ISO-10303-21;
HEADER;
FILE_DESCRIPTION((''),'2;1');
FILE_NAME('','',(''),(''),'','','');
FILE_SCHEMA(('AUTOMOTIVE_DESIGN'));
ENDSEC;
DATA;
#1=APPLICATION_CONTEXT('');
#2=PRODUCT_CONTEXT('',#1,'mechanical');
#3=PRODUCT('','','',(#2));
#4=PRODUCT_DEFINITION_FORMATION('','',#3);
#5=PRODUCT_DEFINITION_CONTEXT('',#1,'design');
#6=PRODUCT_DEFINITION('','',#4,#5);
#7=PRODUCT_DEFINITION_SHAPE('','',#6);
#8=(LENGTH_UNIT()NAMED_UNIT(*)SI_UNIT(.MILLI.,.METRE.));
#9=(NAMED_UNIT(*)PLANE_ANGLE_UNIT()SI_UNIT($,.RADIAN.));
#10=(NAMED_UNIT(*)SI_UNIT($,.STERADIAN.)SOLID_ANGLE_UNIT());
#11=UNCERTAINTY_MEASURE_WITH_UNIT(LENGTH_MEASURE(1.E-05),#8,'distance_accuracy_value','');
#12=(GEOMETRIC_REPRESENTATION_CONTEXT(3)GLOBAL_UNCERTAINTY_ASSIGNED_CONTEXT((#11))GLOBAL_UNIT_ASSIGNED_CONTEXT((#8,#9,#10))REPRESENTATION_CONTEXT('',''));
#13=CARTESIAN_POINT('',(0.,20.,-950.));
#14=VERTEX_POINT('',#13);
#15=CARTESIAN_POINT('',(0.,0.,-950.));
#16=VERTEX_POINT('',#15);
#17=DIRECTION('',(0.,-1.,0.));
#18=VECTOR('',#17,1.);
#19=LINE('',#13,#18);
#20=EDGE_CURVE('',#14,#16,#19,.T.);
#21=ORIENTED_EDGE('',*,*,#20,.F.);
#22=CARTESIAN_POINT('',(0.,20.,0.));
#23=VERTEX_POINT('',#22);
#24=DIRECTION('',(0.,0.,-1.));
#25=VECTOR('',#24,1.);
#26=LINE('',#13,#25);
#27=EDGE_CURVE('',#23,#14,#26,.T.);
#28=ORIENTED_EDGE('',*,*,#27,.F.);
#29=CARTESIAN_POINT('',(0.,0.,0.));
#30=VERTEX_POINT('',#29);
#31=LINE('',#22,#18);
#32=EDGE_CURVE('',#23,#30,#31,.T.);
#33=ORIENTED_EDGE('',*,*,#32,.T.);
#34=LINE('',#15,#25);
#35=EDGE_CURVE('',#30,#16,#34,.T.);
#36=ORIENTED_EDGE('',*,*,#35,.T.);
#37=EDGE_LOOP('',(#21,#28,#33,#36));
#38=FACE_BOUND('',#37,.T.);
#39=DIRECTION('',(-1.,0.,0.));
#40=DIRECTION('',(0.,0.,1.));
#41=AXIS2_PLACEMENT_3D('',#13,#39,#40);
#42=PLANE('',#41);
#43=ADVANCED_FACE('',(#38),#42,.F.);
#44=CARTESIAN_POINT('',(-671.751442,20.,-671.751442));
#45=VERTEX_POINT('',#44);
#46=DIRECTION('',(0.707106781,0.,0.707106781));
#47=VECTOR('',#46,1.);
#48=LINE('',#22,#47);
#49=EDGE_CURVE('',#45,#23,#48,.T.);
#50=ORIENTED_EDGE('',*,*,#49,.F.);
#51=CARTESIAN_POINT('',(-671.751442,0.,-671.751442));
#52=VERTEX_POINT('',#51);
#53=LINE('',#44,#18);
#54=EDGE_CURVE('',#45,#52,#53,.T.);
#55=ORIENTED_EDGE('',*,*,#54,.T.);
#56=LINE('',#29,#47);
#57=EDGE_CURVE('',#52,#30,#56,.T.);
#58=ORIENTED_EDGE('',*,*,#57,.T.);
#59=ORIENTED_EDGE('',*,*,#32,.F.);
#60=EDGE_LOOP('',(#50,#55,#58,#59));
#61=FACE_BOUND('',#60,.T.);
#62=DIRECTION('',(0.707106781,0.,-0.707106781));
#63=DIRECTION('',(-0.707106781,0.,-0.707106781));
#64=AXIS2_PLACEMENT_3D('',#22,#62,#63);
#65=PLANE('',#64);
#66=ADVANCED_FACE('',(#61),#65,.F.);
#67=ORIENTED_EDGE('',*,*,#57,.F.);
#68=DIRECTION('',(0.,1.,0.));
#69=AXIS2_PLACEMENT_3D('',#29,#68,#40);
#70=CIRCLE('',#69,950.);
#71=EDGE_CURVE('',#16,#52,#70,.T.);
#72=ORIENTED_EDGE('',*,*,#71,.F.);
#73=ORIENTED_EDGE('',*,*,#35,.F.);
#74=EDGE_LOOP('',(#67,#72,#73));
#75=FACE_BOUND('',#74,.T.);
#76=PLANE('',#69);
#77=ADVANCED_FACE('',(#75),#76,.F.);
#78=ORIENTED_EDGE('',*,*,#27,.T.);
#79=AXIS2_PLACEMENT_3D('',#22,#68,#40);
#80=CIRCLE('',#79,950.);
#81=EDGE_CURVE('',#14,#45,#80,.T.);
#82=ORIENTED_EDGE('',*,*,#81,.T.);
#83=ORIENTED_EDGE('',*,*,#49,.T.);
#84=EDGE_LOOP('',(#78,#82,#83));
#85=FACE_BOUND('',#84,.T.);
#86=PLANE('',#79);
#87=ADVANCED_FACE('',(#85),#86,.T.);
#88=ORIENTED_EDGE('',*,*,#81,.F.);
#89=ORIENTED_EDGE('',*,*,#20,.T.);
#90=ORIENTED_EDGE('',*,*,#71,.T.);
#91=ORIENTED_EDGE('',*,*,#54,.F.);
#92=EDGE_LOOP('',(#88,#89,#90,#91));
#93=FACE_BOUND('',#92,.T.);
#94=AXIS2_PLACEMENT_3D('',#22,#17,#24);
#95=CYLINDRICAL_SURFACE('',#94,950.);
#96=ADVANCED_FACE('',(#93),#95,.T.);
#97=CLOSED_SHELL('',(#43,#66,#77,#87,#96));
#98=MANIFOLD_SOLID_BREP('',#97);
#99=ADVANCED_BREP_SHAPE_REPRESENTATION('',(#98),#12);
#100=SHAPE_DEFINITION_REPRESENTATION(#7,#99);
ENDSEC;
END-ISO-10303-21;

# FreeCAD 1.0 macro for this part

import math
import FreeCAD as App
import Part
import Sketcher
from FreeCAD import Vector
Q = App.Units.Quantity

doc = App.newDocument("Part")
body = doc.addObject("PartDesign::Body", "Body")

# Sketch on XZ plane
sketch1 = body.newObject("Sketcher::SketchObject", "Sketch")
sketch1.AttachmentSupport = (doc.getObject("XZ_Plane"), [""])
sketch1.MapMode = "FlatFace"
sketch1.addGeometry([
    Part.LineSegment(Vector(0, 0, 0), Vector(0, -950, 0)),
    Part.ArcOfCircle(Part.Circle(Vector(0, 0, 0), Vector(0, 0, 1), 950), math.radians(-135), math.radians(-90)),
    Part.LineSegment(Vector(-671.751442, -671.751442, 0), Vector(0, 0, 0)),
], False)
sketch1.addConstraint([
    Sketcher.Constraint("Coincident", 0, 2, 1, 2),
    Sketcher.Constraint("Coincident", 1, 1, 2, 1),
    Sketcher.Constraint("Coincident", 2, 2, 0, 1),
    Sketcher.Constraint("Vertical", 0),
    Sketcher.Constraint("Coincident", 1, 3, -1, 1),
    Sketcher.Constraint("Coincident", 2, 2, -1, 1),
    Sketcher.Constraint("Radius", 1, Q("950 mm")),
    Sketcher.Constraint("Angle", 2, Q("45 deg")),
])
pad1 = body.newObject("PartDesign::Pad", "Pad")
pad1.Profile = sketch1
pad1.Length = 20
pad1.Reversed = True

doc.recompute()
